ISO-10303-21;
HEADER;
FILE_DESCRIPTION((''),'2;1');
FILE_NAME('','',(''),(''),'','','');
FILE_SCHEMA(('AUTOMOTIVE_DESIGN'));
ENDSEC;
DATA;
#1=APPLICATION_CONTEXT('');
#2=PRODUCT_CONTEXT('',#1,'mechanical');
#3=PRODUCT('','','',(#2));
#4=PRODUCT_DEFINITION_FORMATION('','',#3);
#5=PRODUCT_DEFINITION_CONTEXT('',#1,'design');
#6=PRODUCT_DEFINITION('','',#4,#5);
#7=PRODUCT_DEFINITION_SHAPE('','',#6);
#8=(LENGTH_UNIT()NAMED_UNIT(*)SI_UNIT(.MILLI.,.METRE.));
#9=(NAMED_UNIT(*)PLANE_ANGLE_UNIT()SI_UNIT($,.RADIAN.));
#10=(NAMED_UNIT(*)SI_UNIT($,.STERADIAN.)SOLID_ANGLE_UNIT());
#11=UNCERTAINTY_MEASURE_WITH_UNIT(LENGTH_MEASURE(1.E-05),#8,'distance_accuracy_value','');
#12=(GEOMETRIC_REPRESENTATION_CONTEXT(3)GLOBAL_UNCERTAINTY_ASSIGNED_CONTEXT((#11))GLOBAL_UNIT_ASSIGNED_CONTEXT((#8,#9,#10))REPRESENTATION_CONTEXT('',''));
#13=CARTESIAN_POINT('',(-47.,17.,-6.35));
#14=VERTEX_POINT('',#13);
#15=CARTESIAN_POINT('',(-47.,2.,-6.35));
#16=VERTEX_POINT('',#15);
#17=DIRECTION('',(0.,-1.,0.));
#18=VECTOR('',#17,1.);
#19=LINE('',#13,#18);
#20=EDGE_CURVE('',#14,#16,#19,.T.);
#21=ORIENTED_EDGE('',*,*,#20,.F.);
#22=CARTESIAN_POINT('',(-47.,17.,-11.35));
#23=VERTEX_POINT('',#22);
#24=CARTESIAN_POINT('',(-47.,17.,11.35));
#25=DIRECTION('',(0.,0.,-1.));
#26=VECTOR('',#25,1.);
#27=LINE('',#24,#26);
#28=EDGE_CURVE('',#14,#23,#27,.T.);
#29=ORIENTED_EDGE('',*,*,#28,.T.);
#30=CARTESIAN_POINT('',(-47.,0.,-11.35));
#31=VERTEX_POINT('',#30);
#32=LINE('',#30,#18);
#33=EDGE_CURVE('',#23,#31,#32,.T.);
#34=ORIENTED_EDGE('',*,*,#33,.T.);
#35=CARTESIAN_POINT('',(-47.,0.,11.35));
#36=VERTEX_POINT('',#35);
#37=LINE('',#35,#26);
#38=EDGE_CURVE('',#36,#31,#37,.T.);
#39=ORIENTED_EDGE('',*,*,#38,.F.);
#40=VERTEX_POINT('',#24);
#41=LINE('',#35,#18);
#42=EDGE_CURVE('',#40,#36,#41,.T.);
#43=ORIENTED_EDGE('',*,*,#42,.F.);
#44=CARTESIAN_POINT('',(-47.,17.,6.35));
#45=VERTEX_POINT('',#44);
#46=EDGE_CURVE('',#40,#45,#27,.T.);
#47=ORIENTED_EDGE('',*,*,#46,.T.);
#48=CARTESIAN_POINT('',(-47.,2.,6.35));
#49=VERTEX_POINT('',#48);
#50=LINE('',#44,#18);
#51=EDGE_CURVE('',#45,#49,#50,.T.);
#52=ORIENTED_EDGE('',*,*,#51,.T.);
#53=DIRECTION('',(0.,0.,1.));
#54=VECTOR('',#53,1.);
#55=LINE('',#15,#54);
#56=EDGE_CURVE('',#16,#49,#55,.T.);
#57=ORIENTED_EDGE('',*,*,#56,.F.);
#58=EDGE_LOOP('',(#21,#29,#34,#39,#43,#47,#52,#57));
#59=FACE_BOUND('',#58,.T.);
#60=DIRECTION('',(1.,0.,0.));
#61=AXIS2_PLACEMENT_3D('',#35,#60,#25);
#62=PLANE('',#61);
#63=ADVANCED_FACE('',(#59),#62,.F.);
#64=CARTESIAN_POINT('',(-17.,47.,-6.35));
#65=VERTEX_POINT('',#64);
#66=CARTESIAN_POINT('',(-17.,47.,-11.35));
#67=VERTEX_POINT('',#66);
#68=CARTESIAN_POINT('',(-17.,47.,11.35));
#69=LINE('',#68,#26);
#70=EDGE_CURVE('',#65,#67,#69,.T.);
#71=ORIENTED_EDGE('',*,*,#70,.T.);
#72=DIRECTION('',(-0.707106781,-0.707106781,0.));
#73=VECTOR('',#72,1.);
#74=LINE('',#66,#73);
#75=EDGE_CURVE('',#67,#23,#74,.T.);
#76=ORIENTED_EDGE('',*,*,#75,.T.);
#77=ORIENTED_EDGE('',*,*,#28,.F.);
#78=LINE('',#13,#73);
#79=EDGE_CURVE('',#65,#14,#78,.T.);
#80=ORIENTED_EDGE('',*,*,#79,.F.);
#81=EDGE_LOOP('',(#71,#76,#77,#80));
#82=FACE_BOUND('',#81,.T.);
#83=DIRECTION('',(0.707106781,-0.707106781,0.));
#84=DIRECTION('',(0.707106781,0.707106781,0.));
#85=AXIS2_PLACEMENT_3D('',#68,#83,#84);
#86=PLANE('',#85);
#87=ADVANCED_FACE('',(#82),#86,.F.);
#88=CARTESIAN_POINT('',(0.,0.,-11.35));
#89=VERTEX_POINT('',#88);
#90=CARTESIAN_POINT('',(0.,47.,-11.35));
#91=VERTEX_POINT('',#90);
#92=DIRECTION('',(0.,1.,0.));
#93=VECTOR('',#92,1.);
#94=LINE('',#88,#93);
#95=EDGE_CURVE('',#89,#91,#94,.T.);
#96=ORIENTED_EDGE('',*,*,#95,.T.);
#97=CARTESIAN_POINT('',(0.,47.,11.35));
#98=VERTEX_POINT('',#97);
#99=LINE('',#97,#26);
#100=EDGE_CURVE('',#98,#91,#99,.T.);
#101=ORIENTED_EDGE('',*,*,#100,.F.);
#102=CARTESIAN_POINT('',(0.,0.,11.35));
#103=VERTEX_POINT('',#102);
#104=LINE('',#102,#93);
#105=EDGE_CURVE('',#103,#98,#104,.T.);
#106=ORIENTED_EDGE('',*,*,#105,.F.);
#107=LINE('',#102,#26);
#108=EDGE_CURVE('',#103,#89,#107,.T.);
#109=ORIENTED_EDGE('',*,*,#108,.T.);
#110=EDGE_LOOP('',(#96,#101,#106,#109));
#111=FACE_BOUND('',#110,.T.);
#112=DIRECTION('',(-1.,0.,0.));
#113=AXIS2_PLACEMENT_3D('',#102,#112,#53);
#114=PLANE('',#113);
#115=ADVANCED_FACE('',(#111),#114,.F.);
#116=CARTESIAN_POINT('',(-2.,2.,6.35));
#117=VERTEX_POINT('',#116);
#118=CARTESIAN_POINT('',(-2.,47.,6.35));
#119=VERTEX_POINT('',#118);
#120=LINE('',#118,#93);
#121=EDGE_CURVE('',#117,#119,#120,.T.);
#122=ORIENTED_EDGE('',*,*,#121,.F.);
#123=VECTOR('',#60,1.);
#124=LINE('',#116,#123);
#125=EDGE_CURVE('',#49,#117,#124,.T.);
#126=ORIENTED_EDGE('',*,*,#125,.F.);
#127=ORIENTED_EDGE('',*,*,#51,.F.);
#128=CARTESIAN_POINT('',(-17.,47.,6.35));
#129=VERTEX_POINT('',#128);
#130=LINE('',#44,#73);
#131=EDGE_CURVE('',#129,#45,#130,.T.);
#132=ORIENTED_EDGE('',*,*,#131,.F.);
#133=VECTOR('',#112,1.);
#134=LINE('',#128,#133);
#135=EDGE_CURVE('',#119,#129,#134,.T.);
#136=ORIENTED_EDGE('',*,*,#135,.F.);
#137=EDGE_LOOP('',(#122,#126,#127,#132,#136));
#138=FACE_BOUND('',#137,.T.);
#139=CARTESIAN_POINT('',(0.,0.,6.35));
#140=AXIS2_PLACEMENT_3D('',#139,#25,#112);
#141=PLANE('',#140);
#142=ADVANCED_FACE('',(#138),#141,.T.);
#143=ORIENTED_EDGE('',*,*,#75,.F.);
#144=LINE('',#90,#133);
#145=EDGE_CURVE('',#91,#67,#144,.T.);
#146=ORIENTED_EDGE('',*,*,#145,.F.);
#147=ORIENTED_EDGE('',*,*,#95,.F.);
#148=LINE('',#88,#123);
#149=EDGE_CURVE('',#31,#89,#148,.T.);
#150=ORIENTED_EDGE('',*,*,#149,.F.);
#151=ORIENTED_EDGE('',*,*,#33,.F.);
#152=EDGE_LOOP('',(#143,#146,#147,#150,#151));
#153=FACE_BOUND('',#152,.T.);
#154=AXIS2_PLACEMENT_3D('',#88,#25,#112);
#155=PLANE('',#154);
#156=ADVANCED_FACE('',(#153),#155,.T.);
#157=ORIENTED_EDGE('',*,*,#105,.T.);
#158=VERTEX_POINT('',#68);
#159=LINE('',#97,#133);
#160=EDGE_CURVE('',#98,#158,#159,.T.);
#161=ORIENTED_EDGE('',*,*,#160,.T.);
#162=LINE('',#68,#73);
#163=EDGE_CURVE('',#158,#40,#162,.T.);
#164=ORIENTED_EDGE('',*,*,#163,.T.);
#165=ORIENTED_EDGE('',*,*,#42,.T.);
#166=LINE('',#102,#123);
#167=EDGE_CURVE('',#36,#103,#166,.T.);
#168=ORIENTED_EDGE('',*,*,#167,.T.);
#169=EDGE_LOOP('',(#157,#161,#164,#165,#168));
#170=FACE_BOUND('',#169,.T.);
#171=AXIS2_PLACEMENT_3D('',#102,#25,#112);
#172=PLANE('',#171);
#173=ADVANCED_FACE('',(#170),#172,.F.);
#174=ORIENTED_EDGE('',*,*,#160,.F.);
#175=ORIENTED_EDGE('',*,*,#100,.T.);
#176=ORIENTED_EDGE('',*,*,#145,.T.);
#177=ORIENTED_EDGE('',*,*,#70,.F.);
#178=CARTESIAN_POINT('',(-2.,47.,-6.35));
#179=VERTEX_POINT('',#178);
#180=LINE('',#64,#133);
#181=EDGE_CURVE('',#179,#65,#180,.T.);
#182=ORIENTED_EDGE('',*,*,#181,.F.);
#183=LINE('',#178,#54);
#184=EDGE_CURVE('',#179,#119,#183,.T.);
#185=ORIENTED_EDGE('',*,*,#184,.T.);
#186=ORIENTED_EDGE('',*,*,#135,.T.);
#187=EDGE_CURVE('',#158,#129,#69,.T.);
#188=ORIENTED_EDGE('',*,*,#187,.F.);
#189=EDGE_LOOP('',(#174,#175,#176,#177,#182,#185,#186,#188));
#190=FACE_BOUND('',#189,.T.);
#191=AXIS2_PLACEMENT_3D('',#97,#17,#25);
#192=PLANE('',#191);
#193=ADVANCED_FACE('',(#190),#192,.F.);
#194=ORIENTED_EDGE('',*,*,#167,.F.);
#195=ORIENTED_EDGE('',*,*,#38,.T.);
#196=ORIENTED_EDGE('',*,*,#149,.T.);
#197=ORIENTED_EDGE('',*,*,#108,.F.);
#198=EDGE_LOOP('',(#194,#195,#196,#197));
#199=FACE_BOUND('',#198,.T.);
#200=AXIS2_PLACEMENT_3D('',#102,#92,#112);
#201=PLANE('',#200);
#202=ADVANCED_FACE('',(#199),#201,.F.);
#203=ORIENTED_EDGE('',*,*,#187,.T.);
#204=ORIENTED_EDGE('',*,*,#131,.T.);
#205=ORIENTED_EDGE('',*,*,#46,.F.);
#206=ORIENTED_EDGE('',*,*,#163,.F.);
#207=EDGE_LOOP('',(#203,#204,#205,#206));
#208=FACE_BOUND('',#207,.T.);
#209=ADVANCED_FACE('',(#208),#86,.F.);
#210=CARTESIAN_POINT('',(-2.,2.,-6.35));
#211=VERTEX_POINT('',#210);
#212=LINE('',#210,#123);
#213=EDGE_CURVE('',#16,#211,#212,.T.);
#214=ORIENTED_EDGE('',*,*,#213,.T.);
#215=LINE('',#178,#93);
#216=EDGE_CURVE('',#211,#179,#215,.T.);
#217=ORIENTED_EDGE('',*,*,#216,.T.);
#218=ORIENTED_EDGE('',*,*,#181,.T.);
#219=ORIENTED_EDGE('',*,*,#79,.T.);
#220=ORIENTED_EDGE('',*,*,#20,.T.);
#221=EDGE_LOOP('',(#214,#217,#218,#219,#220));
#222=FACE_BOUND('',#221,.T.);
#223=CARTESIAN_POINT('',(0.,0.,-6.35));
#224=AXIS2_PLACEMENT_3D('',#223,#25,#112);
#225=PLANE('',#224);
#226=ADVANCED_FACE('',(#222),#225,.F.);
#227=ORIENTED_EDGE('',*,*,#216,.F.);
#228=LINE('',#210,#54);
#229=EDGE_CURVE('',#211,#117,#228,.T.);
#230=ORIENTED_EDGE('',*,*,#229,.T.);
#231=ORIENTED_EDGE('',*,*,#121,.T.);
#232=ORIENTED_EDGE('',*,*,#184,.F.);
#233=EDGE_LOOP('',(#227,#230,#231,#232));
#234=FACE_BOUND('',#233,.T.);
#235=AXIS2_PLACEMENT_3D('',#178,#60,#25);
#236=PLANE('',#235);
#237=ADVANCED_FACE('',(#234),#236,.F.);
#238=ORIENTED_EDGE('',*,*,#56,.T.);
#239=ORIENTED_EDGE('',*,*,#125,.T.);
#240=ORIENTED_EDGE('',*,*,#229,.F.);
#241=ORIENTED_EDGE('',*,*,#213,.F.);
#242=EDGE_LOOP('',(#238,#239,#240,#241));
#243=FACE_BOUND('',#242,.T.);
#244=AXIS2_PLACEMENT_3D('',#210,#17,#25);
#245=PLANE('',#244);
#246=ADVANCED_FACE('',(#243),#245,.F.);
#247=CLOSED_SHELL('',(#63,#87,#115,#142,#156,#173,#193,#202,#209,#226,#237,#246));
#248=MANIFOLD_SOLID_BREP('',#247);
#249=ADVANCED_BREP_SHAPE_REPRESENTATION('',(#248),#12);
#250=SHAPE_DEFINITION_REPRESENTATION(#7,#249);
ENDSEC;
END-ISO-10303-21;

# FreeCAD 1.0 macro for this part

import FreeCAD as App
import Part
import Sketcher
Q = App.Units.Quantity

doc = App.newDocument("Part")
body = doc.addObject("PartDesign::Body", "Body")

sketch1 = body.newObject("Sketcher::SketchObject", "Sketch")
sketch1.AttachmentSupport = (doc.getObject("XY_Plane"), [""])
sketch1.MapMode = "FlatFace"
sketch1.addGeometry(Part.LineSegment(App.Vector(0, 0, 0), App.Vector(0, 47, 0)), False)
sketch1.addGeometry(Part.LineSegment(App.Vector(0, 47, 0), App.Vector(-17, 47, 0)), False)
sketch1.addGeometry(Part.LineSegment(App.Vector(-17, 47, 0), App.Vector(-47, 17, 0)), False)
sketch1.addGeometry(Part.LineSegment(App.Vector(-47, 17, 0), App.Vector(-47, 0, 0)), False)
sketch1.addGeometry(Part.LineSegment(App.Vector(-47, 0, 0), App.Vector(0, 0, 0)), False)
sketch1.addConstraint(Sketcher.Constraint("Coincident", 0, 2, 1, 1))
sketch1.addConstraint(Sketcher.Constraint("Coincident", 1, 2, 2, 1))
sketch1.addConstraint(Sketcher.Constraint("Coincident", 2, 2, 3, 1))
sketch1.addConstraint(Sketcher.Constraint("Coincident", 3, 2, 4, 1))
sketch1.addConstraint(Sketcher.Constraint("Coincident", 4, 2, 0, 1))
sketch1.addConstraint(Sketcher.Constraint("Vertical", 0))
sketch1.addConstraint(Sketcher.Constraint("Horizontal", 1))
sketch1.addConstraint(Sketcher.Constraint("Vertical", 3))
sketch1.addConstraint(Sketcher.Constraint("Horizontal", 4))
sketch1.addConstraint(Sketcher.Constraint("Coincident", 4, 2, -1, 1))
sketch1.addConstraint(Sketcher.Constraint("Equal", 4, 0))
sketch1.addConstraint(Sketcher.Constraint("Equal", 1, 3))
sketch1.addConstraint(Sketcher.Constraint("DistanceX", 1, 2, 1, 1, Q("17 mm")))
sketch1.addConstraint(Sketcher.Constraint("DistanceX", 4, 1, 4, 2, Q("47 mm")))
pad1 = body.newObject("PartDesign::Pad", "Pad")
pad1.Profile = sketch1
pad1.Length = 22.7
pad1.Midplane = True

sketch2 = body.newObject("Sketcher::SketchObject", "Sketch001")
sketch2.AttachmentSupport = (doc.getObject("XY_Plane"), [""])
sketch2.MapMode = "FlatFace"
sketch2.addGeometry(Part.LineSegment(App.Vector(-47, 17, 0), App.Vector(-47, 2, 0)), False)
sketch2.addGeometry(Part.LineSegment(App.Vector(-47, 2, 0), App.Vector(-2, 2, 0)), False)
sketch2.addGeometry(Part.LineSegment(App.Vector(-2, 2, 0), App.Vector(-2, 47, 0)), False)
sketch2.addGeometry(Part.LineSegment(App.Vector(-2, 47, 0), App.Vector(-17, 47, 0)), False)
sketch2.addGeometry(Part.LineSegment(App.Vector(-17, 47, 0), App.Vector(-47, 17, 0)), False)
sketch2.addConstraint(Sketcher.Constraint("Coincident", 0, 2, 1, 1))
sketch2.addConstraint(Sketcher.Constraint("Coincident", 1, 2, 2, 1))
sketch2.addConstraint(Sketcher.Constraint("Coincident", 2, 2, 3, 1))
sketch2.addConstraint(Sketcher.Constraint("Coincident", 3, 2, 4, 1))
sketch2.addConstraint(Sketcher.Constraint("Coincident", 4, 2, 0, 1))
sketch2.addConstraint(Sketcher.Constraint("Vertical", 0))
sketch2.addConstraint(Sketcher.Constraint("Horizontal", 1))
sketch2.addConstraint(Sketcher.Constraint("Vertical", 2))
sketch2.addConstraint(Sketcher.Constraint("Horizontal", 3))
sketch2.addConstraint(Sketcher.Constraint("Equal", 3, 0))
sketch2.addConstraint(Sketcher.Constraint("Equal", 1, 2))
sketch2.addConstraint(Sketcher.Constraint("DistanceX", 1, 1, 1, 2, Q("45 mm")))
sketch2.addConstraint(Sketcher.Constraint("DistanceX", 3, 2, 3, 1, Q("15 mm")))
sketch2.addConstraint(Sketcher.Constraint("DistanceX", 0, 2, -1, 1, Q("47 mm")))
sketch2.addConstraint(Sketcher.Constraint("DistanceY", -1, 1, 0, 2, Q("2 mm")))
pocket1 = body.newObject("PartDesign::Pocket", "Pocket")
pocket1.Profile = sketch2
pocket1.Length = 12.7
pocket1.Midplane = True

doc.recompute()
